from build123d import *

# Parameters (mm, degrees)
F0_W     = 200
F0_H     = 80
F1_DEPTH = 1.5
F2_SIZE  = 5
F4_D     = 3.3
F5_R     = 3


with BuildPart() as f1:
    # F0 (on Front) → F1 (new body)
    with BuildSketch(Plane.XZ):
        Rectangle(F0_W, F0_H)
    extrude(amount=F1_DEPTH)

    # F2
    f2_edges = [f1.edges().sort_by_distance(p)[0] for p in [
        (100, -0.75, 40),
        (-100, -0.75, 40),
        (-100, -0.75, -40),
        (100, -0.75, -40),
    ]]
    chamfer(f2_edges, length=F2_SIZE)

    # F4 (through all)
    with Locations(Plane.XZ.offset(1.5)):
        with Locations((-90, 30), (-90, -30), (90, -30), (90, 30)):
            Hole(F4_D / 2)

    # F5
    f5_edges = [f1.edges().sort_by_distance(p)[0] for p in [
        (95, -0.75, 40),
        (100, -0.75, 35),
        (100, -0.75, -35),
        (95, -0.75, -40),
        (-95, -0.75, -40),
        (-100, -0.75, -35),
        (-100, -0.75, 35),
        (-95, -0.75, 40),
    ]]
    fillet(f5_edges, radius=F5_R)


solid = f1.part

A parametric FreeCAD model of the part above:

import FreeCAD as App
import Part
import Sketcher
Q = App.Units.Quantity


def edges_at(feature, points):
    """Names of the edges that pass closest to the given points."""
    edges = feature.Shape.Edges
    near = lambda p: min(range(len(edges)), key=lambda i: edges[i].distToShape(Part.Vertex(*p))[0])
    return sorted({f"Edge{near(p) + 1}" for p in points})

doc = App.newDocument("Part")
body = doc.addObject("PartDesign::Body", "Body")

# Sketch on XZ plane
sketch1 = body.newObject("Sketcher::SketchObject", "Sketch")
sketch1.AttachmentSupport = (doc.getObject("XZ_Plane"), [""])
sketch1.MapMode = "FlatFace"
sketch1.addGeometry([
    Part.LineSegment(App.Vector(-100, 40, 0), App.Vector(-100, -40, 0)),
    Part.LineSegment(App.Vector(-100, -40, 0), App.Vector(100, -40, 0)),
    Part.LineSegment(App.Vector(100, -40, 0), App.Vector(100, 40, 0)),
    Part.LineSegment(App.Vector(100, 40, 0), App.Vector(-100, 40, 0)),
], False)
sketch1.addConstraint([
    Sketcher.Constraint("Coincident", 0, 2, 1, 1),
    Sketcher.Constraint("Coincident", 1, 2, 2, 1),
    Sketcher.Constraint("Coincident", 2, 2, 3, 1),
    Sketcher.Constraint("Coincident", 3, 2, 0, 1),
    Sketcher.Constraint("Vertical", 0),
    Sketcher.Constraint("Horizontal", 1),
    Sketcher.Constraint("Vertical", 2),
    Sketcher.Constraint("Horizontal", 3),
    Sketcher.Constraint("Symmetric", 0, 2, 2, 2, -1, 1),
    Sketcher.Constraint("DistanceX", 1, 1, 1, 2, Q("200 mm")),
    Sketcher.Constraint("DistanceY", 0, 2, 0, 1, Q("80 mm")),
])
pad1 = body.newObject("PartDesign::Pad", "Pad")
pad1.Profile = sketch1
pad1.Length = 1.5
doc.recompute()

chamfer = body.newObject("PartDesign::Chamfer", "Chamfer")
chamfer.Base = (pad1, edges_at(pad1, [
    (100, -0.75, 40),
    (-100, -0.75, 40),
    (-100, -0.75, -40),
    (100, -0.75, -40),
]))
chamfer.Size = 5

# Sketch on XZ plane
sketch2 = body.newObject("Sketcher::SketchObject", "Sketch001")
sketch2.AttachmentSupport = (doc.getObject("XZ_Plane"), [""])
sketch2.MapMode = "FlatFace"
sketch2.AttachmentOffset = App.Placement(App.Vector(0, 0, 1.5), App.Rotation())
sketch2.addGeometry([
    Part.Circle(App.Vector(-90, 30, 0), App.Vector(0, 0, 1), 1.65),
    Part.Circle(App.Vector(-90, -30, 0), App.Vector(0, 0, 1), 1.65),
    Part.Circle(App.Vector(90, -30, 0), App.Vector(0, 0, 1), 1.65),
    Part.Circle(App.Vector(90, 30, 0), App.Vector(0, 0, 1), 1.65),
], False)
sketch2.addConstraint([
    Sketcher.Constraint("Equal", 0, 1),
    Sketcher.Constraint("Equal", 1, 2),
    Sketcher.Constraint("Equal", 2, 3),
    Sketcher.Constraint("Symmetric", 0, 3, 2, 3, -1, 1),
    Sketcher.Constraint("Symmetric", 1, 3, 3, 3, -1, 1),
    Sketcher.Constraint("Symmetric", 1, 3, 2, 3, -2),
    Sketcher.Constraint("Diameter", 0, Q("3.3 mm")),
    Sketcher.Constraint("DistanceX", 0, 3, -1, 1, Q("90 mm")),
    Sketcher.Constraint("DistanceY", -1, 1, 0, 3, Q("30 mm")),
])
doc.recompute()
hole = body.newObject("PartDesign::Hole", "Hole")
hole.Profile = sketch2
hole.ThreadType = "None"
hole.Diameter = 3.3
hole.DepthType = "ThroughAll"
doc.recompute()

fillet = body.newObject("PartDesign::Fillet", "Fillet")
fillet.Base = (hole, edges_at(hole, [
    (95, -0.75, 40),
    (100, -0.75, 35),
    (100, -0.75, -35),
    (95, -0.75, -40),
    (-95, -0.75, -40),
    (-100, -0.75, -35),
    (-100, -0.75, 35),
    (-95, -0.75, 40),
]))
fillet.Radius = 3

doc.recompute()
